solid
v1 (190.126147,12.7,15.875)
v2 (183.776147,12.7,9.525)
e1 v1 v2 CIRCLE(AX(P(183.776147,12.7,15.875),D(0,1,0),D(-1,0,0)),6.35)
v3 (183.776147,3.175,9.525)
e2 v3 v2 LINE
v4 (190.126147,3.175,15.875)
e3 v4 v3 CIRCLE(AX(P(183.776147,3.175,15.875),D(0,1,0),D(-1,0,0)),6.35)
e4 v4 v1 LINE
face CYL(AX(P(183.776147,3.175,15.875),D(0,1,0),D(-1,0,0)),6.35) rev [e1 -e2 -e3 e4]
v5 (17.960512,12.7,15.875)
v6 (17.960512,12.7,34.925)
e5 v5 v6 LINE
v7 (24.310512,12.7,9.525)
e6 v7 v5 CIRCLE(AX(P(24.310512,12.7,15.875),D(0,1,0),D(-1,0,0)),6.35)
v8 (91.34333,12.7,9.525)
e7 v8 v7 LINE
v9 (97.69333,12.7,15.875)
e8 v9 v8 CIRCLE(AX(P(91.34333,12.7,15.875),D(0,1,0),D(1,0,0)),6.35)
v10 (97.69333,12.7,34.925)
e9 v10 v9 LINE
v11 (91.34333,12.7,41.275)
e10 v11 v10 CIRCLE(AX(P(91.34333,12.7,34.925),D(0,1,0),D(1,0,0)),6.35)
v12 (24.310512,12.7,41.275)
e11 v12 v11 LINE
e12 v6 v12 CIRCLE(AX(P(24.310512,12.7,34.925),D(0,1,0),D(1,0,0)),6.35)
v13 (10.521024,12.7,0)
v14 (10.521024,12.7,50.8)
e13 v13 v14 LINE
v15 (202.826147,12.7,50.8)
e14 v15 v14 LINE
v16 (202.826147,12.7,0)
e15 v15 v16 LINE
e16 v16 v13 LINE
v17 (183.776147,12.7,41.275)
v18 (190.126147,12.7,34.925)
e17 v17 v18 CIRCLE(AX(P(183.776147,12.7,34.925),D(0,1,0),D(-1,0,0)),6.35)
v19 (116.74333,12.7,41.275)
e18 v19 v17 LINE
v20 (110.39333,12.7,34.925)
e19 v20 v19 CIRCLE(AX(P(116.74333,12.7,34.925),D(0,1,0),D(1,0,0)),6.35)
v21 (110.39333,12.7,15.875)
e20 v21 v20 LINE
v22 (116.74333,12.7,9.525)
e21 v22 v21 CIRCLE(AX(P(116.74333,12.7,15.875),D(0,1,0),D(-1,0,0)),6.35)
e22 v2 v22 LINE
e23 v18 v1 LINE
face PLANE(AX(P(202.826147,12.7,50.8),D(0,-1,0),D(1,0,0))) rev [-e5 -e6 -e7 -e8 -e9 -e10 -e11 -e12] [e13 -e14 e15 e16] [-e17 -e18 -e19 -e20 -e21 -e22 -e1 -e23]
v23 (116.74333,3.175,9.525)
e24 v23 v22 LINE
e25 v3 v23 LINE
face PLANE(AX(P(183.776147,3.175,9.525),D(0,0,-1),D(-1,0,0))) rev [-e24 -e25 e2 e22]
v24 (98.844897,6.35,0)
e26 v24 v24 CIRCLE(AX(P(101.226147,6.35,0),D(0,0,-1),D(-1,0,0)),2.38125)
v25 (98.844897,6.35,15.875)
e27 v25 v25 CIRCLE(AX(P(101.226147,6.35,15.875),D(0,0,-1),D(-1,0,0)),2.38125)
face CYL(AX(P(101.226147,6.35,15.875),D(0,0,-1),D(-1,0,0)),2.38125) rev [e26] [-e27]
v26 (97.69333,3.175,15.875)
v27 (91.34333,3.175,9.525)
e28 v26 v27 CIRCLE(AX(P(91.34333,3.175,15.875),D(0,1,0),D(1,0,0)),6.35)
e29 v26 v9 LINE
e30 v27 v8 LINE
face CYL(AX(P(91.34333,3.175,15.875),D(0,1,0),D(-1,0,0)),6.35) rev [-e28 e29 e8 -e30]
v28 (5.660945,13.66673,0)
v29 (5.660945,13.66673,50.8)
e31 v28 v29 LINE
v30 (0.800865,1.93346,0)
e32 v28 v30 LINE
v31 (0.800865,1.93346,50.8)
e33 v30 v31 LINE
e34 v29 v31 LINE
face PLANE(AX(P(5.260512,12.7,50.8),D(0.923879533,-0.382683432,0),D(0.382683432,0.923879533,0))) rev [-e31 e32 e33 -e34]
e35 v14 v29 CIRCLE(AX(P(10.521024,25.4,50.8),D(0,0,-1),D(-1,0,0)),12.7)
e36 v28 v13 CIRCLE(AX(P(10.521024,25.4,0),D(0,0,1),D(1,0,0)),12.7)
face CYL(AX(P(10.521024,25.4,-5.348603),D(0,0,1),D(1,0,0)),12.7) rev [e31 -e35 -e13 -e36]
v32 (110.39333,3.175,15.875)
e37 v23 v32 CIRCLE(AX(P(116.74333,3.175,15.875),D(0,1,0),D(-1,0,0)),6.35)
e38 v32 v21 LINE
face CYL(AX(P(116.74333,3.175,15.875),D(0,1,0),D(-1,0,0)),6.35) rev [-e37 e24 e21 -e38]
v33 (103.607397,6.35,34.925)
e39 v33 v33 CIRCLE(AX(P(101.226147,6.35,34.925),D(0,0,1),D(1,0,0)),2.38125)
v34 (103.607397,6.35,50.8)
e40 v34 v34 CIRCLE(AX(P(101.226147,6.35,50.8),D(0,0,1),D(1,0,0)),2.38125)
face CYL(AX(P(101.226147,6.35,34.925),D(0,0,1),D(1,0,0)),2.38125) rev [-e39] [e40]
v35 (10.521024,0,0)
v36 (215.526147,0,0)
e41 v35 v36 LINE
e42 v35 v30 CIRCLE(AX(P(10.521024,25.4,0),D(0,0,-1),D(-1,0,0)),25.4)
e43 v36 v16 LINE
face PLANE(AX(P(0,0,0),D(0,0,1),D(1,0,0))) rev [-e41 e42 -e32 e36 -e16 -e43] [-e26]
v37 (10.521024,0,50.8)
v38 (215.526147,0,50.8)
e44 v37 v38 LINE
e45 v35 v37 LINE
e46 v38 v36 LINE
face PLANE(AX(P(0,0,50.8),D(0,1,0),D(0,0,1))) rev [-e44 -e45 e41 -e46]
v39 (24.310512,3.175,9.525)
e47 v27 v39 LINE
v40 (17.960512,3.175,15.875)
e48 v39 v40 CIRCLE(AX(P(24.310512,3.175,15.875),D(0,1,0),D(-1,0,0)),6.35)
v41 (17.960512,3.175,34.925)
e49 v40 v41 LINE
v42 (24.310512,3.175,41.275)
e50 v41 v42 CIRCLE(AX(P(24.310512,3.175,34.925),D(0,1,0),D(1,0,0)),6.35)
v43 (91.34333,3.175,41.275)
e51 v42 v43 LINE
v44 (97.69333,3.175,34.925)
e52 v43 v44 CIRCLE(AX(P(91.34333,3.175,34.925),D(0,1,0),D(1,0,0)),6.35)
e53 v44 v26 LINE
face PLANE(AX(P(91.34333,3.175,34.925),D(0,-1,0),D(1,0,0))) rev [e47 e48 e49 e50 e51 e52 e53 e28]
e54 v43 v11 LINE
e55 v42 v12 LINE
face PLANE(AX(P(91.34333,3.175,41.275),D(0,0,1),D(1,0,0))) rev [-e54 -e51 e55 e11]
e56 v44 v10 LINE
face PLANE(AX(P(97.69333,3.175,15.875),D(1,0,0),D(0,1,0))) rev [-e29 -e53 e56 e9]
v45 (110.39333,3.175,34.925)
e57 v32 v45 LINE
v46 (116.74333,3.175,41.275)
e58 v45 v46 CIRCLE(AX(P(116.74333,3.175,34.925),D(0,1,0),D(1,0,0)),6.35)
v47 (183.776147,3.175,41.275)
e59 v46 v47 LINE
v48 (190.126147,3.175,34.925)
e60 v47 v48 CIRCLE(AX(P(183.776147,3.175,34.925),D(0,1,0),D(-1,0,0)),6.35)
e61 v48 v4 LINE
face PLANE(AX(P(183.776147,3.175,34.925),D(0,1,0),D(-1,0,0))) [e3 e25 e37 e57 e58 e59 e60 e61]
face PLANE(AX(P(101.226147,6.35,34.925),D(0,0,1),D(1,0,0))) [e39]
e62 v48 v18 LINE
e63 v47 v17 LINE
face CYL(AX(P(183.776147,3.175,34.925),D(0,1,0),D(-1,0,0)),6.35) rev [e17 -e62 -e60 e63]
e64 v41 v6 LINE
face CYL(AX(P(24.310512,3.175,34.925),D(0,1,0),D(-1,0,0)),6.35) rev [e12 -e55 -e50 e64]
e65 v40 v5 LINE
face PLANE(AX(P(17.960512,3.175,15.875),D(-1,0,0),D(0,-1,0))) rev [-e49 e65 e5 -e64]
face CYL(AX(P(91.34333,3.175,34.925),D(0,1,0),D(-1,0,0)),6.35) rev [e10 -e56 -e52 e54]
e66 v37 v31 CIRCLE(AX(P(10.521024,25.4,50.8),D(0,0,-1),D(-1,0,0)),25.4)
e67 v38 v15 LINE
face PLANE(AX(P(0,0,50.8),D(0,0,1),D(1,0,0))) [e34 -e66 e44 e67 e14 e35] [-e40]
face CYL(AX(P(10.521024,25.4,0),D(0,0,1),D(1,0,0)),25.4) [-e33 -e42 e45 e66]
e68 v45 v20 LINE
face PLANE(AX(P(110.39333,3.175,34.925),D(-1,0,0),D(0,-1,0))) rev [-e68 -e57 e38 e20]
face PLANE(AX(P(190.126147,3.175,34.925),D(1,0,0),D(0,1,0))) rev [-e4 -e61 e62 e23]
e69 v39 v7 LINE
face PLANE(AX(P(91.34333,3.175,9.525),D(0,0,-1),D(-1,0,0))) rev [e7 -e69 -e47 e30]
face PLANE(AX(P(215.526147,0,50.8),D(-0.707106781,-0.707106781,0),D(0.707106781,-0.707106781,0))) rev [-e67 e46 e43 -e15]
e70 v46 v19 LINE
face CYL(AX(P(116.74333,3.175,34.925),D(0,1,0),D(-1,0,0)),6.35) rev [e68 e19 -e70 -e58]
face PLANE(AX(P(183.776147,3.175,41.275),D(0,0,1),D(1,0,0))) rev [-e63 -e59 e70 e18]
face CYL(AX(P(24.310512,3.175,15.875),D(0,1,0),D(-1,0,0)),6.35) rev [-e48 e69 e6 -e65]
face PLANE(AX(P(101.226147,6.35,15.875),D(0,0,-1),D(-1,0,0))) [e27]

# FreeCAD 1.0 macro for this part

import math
import FreeCAD as App
import Part
import Sketcher
Q = App.Units.Quantity


def add_polygon(sketch, points):
    """Adds a closed chain of lines whose ends are joined by coincident constraints."""
    first, n = sketch.GeometryCount, len(points)
    for a, b in zip(points, points[1:] + points[:1]):
        sketch.addGeometry(Part.LineSegment(App.Vector(*a, 0), App.Vector(*b, 0)), False)
    for i in range(n):
        sketch.addConstraint(Sketcher.Constraint("Coincident", first + i, 2, first + (i + 1) % n, 1))

doc = App.newDocument("Part")
body = doc.addObject("PartDesign::Body", "Body")

# Sketch on XY plane
sketch1 = doc.addObject("Sketcher::SketchObject", "Sketch")
body.addObject(sketch1)
sketch1.AttachmentSupport = (doc.XY_Plane, [""])
sketch1.MapMode = "FlatFace"
add_polygon(sketch1, [(0, 0), (216, 0), (203, 13), (5, 13)])  # lines 0-3
sketch1.addConstraint([
    Sketcher.Constraint("Horizontal", 0),
    Sketcher.Constraint("Horizontal", 2),
    Sketcher.Constraint("Coincident", 3, 2, -1, 1),
    Sketcher.Constraint("Angle", 1, Q("135 deg")),
    Sketcher.Constraint("DistanceY", -1, 1, 1, 2, Q("0.5 in")),
    Sketcher.Constraint("Angle", 3, Q("-112.5 deg")),
    Sketcher.Constraint("DistanceX", 0, 1, 0, 2, 215.526147),
])
pad1 = doc.addObject("PartDesign::Pad", "Pad")
body.addObject(pad1)
pad1.Profile = sketch1
pad1.Length = Q("2 in")

# Sketch on XZ plane
sketch2 = doc.addObject("Sketcher::SketchObject", "Sketch001")
body.addObject(sketch2)
sketch2.AttachmentSupport = (doc.XZ_Plane, [""])
sketch2.MapMode = "FlatFace"
sketch2.AttachmentOffset = App.Placement(App.Vector(0, 0, -0.5 * 25.4), App.Rotation())
sketch2.addGeometry([
    Part.LineSegment(App.Vector(117, 41, 0), App.Vector(184, 41, 0)),  # 0
    Part.ArcOfCircle(Part.Circle(App.Vector(184, 35, 0), App.Vector(0, 0, 1), 6), math.radians(0), math.radians(90)),  # 1
    Part.LineSegment(App.Vector(190, 35, 0), App.Vector(190, 16, 0)),  # 2
    Part.ArcOfCircle(Part.Circle(App.Vector(184, 16, 0), App.Vector(0, 0, 1), 6), math.radians(-90), math.radians(0)),  # 3
    Part.LineSegment(App.Vector(184, 10, 0), App.Vector(117, 10, 0)),  # 4
    Part.ArcOfCircle(Part.Circle(App.Vector(117, 16, 0), App.Vector(0, 0, 1), 6), math.radians(180), math.radians(270)),  # 5
    Part.LineSegment(App.Vector(110, 16, 0), App.Vector(110, 35, 0)),  # 6
    Part.ArcOfCircle(Part.Circle(App.Vector(117, 35, 0), App.Vector(0, 0, 1), 6), math.radians(90), math.radians(180)),  # 7
    Part.LineSegment(App.Vector(91, 10, 0), App.Vector(24, 10, 0)),  # 8
    Part.ArcOfCircle(Part.Circle(App.Vector(24, 16, 0), App.Vector(0, 0, 1), 6), math.radians(180), math.radians(270)),  # 9
    Part.LineSegment(App.Vector(18, 16, 0), App.Vector(18, 35, 0)),  # 10
    Part.ArcOfCircle(Part.Circle(App.Vector(24, 35, 0), App.Vector(0, 0, 1), 6), math.radians(90), math.radians(180)),  # 11
    Part.LineSegment(App.Vector(24, 41, 0), App.Vector(91, 41, 0)),  # 12
    Part.ArcOfCircle(Part.Circle(App.Vector(91, 35, 0), App.Vector(0, 0, 1), 6), math.radians(0), math.radians(90)),  # 13
    Part.LineSegment(App.Vector(98, 35, 0), App.Vector(98, 16, 0)),  # 14
    Part.ArcOfCircle(Part.Circle(App.Vector(91, 16, 0), App.Vector(0, 0, 1), 6), math.radians(-90), math.radians(0)),  # 15
], False)
sketch2.addConstraint([
    Sketcher.Constraint("Tangent", 0, 2, 1, 2),
    Sketcher.Constraint("Tangent", 1, 1, 2, 1),
    Sketcher.Constraint("Tangent", 2, 2, 3, 2),
    Sketcher.Constraint("Tangent", 3, 1, 4, 1),
    Sketcher.Constraint("Tangent", 4, 2, 5, 2),
    Sketcher.Constraint("Tangent", 5, 1, 6, 1),
    Sketcher.Constraint("Tangent", 6, 2, 7, 2),
    Sketcher.Constraint("Tangent", 7, 1, 0, 1),
    Sketcher.Constraint("Tangent", 8, 2, 9, 2),
    Sketcher.Constraint("Tangent", 9, 1, 10, 1),
    Sketcher.Constraint("Tangent", 10, 2, 11, 2),
    Sketcher.Constraint("Tangent", 11, 1, 12, 1),
    Sketcher.Constraint("Tangent", 12, 2, 13, 2),
    Sketcher.Constraint("Tangent", 13, 1, 14, 1),
    Sketcher.Constraint("Tangent", 14, 2, 15, 2),
    Sketcher.Constraint("Tangent", 15, 1, 8, 1),
    Sketcher.Constraint("Horizontal", 0),
    Sketcher.Constraint("Vertical", 2),
    Sketcher.Constraint("Horizontal", 4),
    Sketcher.Constraint("Vertical", 6),
    Sketcher.Constraint("Horizontal", 8),
    Sketcher.Constraint("Vertical", 10),
    Sketcher.Constraint("Horizontal", 12),
    Sketcher.Constraint("Vertical", 14),
    Sketcher.Constraint("Equal", 1, 3),
    Sketcher.Constraint("Equal", 3, 5),
    Sketcher.Constraint("Equal", 5, 7),
    Sketcher.Constraint("Equal", 7, 9),
    Sketcher.Constraint("Equal", 9, 11),
    Sketcher.Constraint("Equal", 11, 13),
    Sketcher.Constraint("Equal", 13, 15),
    Sketcher.Constraint("Horizontal", 5, 3, 9, 3),
    Sketcher.Constraint("Horizontal", 7, 3, 11, 3),
    Sketcher.Constraint("Equal", 4, 8),
    Sketcher.Constraint("Radius", 1, Q("0.25 in")),
    Sketcher.Constraint("DistanceX", 13, 3, 7, 3, Q("1 in")),
    Sketcher.Constraint("DistanceY", 3, 3, 0, 2, Q("1 in")),
    Sketcher.Constraint("DistanceY", -1, 1, 1, 3, Q("1.375 in")),
    Sketcher.Constraint("DistanceX", 0, 1, 0, 2, 67.032817),
    Sketcher.Constraint("DistanceX", -1, 1, 5, 3, 116.74333),
])
pocket1 = doc.addObject("PartDesign::Pocket", "Pocket")
body.addObject(pocket1)
pocket1.Profile = sketch2
pocket1.Length = Q("0.375 in")
pocket1.Reversed = True

# Sketch on XY plane
sketch3 = doc.addObject("Sketcher::SketchObject", "Sketch002")
body.addObject(sketch3)
sketch3.AttachmentSupport = (doc.XY_Plane, [""])
sketch3.MapMode = "FlatFace"
sketch3.AttachmentOffset = App.Placement(App.Vector(0, 0, 2 * 25.4), App.Rotation())
sketch3.addGeometry(Part.Circle(App.Vector(101.2, 6.3, 0), App.Vector(0, 0, 1), 2.4), False)
sketch3.addConstraint([
    Sketcher.Constraint("Diameter", 0, Q("0.1875 in")),
    Sketcher.Constraint("DistanceY", -1, 1, 0, 3, Q("0.25 in")),
    Sketcher.Constraint("DistanceX", -1, 1, 0, 3, 101.226147),
])
pocket2 = doc.addObject("PartDesign::Pocket", "Pocket001")
body.addObject(pocket2)
pocket2.Profile = sketch3
pocket2.Length = Q("0.625 in")

# Sketch on XY plane
sketch4 = doc.addObject("Sketcher::SketchObject", "Sketch003")
body.addObject(sketch4)
sketch4.AttachmentSupport = (doc.XY_Plane, [""])
sketch4.MapMode = "FlatFace"
sketch4.AttachmentOffset = App.Placement(App.Vector(0, 0, 0.625 * 25.4), App.Rotation())
sketch4.addGeometry(Part.Circle(App.Vector(101.2, 6.3, 0), App.Vector(0, 0, 1), 2.4), False)
sketch4.addConstraint([
    Sketcher.Constraint("Diameter", 0, Q("0.1875 in")),
    Sketcher.Constraint("DistanceY", -1, 1, 0, 3, Q("0.25 in")),
    Sketcher.Constraint("DistanceX", -1, 1, 0, 3, 101.226147),
])
pocket3 = doc.addObject("PartDesign::Pocket", "Pocket002")
body.addObject(pocket3)
pocket3.Profile = sketch4
pocket3.Length = Q("0.625 in")

# Sketch on XY plane
sketch5 = doc.addObject("Sketcher::SketchObject", "Sketch004")
body.addObject(sketch5)
sketch5.AttachmentSupport = (doc.XY_Plane, [""])
sketch5.MapMode = "FlatFace"
sketch5.AttachmentOffset = App.Placement(App.Vector(0, 0, 2 * 25.4), App.Rotation())
sketch5.addGeometry([
    Part.LineSegment(App.Vector(0.8, 1.9, 0), App.Vector(0, 0, 0)),
    Part.LineSegment(App.Vector(0, 0, 0), App.Vector(10.5, 0, 0)),
    Part.ArcOfCircle(Part.Circle(App.Vector(10.5, 25.4, 0), App.Vector(0, 0, 1), 25.4), math.radians(-112), math.radians(-90)),
], False)
sketch5.addConstraint([
    Sketcher.Constraint("Coincident", 0, 2, 1, 1),
    Sketcher.Constraint("Tangent", 1, 2, 2, 2),
    Sketcher.Constraint("Coincident", 2, 1, 0, 1),
    Sketcher.Constraint("Horizontal", 1),
    Sketcher.Constraint("Coincident", 0, 2, -1, 1),
    Sketcher.Constraint("Radius", 2, Q("1 in")),
    Sketcher.Constraint("Angle", 0, Q("-112.5 deg")),
    Sketcher.Constraint("Distance", 0, 2.092762),
])
pocket4 = doc.addObject("PartDesign::Pocket", "Pocket003")
body.addObject(pocket4)
pocket4.Profile = sketch5
pocket4.Type = "ThroughAll"

# Sketch on XY plane
sketch6 = doc.addObject("Sketcher::SketchObject", "Sketch005")
body.addObject(sketch6)
sketch6.AttachmentSupport = (doc.XY_Plane, [""])
sketch6.MapMode = "FlatFace"
sketch6.AttachmentOffset = App.Placement(App.Vector(0, 0, 2 * 25.4), App.Rotation())
sketch6.addGeometry([
    Part.LineSegment(App.Vector(5.7, 13.7, 0), App.Vector(5.3, 12.7, 0)),
    Part.LineSegment(App.Vector(5.3, 12.7, 0), App.Vector(10.5, 12.7, 0)),
    Part.ArcOfCircle(Part.Circle(App.Vector(10.5, 25.4, 0), App.Vector(0, 0, 1), 12.7), math.radians(-112), math.radians(-90)),
], False)
sketch6.addConstraint([
    Sketcher.Constraint("Coincident", 0, 2, 1, 1),
    Sketcher.Constraint("Tangent", 1, 2, 2, 2),
    Sketcher.Constraint("Coincident", 2, 1, 0, 1),
    Sketcher.Constraint("Horizontal", 1),
    Sketcher.Constraint("Radius", 2, Q("0.5 in")),
    Sketcher.Constraint("DistanceY", -1, 1, 2, 3, Q("1 in")),
    Sketcher.Constraint("Angle", 0, Q("-112.5 deg")),
    Sketcher.Constraint("Distance", 0, 1.046381),
    Sketcher.Constraint("DistanceX", -1, 1, 2, 3, 10.521024),
])
pad2 = doc.addObject("PartDesign::Pad", "Pad001")
body.addObject(pad2)
pad2.Profile = sketch6
pad2.Length = Q("2 in")
pad2.Reversed = True

doc.recompute()
